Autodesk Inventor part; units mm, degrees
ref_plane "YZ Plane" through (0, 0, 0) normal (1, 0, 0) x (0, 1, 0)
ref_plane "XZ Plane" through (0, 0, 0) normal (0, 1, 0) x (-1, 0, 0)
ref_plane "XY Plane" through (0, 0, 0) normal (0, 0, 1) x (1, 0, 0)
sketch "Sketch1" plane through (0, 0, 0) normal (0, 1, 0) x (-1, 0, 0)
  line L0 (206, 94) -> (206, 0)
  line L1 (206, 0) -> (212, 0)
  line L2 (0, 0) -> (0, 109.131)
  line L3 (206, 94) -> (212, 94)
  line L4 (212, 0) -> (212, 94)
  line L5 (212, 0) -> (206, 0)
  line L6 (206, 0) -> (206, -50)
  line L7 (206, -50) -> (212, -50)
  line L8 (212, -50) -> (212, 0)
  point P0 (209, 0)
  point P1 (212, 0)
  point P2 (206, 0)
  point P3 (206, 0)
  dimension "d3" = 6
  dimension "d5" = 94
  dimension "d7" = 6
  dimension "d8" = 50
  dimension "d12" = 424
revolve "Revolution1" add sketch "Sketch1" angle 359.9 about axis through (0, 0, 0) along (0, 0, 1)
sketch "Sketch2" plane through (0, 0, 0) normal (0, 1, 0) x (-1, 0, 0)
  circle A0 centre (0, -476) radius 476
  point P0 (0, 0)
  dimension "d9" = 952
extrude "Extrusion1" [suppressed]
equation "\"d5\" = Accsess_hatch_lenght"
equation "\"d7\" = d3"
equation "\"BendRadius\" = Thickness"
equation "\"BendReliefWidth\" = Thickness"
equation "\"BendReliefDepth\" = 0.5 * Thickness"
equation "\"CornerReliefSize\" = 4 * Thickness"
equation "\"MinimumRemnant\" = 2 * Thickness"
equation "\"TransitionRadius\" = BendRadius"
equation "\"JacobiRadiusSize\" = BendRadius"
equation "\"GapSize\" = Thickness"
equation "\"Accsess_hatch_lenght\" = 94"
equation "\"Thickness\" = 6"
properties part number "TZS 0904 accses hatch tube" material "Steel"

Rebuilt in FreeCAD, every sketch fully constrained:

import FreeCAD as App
import Part
import Sketcher

doc = App.newDocument("Part")
body = doc.addObject("PartDesign::Body", "Body")

sketch1 = doc.addObject("Sketcher::SketchObject", "Sketch")
body.addObject(sketch1)
sketch1.AttachmentSupport = (doc.XZ_Plane, [""])
sketch1.MapMode = "FlatFace"
sketch1.addGeometry([
    Part.LineSegment(App.Vector(-212, 94, 0), App.Vector(-206, 94, 0)),
    Part.LineSegment(App.Vector(-206, 94, 0), App.Vector(-206, -50, 0)),
    Part.LineSegment(App.Vector(-206, -50, 0), App.Vector(-212, -50, 0)),
    Part.LineSegment(App.Vector(-212, -50, 0), App.Vector(-212, 94, 0)),
], False)
sketch1.addConstraint([
    Sketcher.Constraint("Coincident", 0, 2, 1, 1),
    Sketcher.Constraint("Coincident", 1, 2, 2, 1),
    Sketcher.Constraint("Coincident", 2, 2, 3, 1),
    Sketcher.Constraint("Coincident", 3, 2, 0, 1),
    Sketcher.Constraint("Horizontal", 0),
    Sketcher.Constraint("Vertical", 1),
    Sketcher.Constraint("Horizontal", 2),
    Sketcher.Constraint("Vertical", 3),
    Sketcher.Constraint("DistanceX", 0, 1, 0, 2, 6.0),
    Sketcher.Constraint("DistanceY", -1, 1, 0, 2, 94.0),
    Sketcher.Constraint("DistanceY", 1, 2, -1, 1, 50.0),
    Sketcher.Constraint("DistanceX", 0, 2, -1, 1, 206.0),
])
revolution = doc.addObject("PartDesign::Revolution", "Revolution")
body.addObject(revolution)
revolution.Profile = sketch1
revolution.ReferenceAxis = (sketch1, ["V_Axis"])
revolution.Angle = 359.9

doc.recompute()
